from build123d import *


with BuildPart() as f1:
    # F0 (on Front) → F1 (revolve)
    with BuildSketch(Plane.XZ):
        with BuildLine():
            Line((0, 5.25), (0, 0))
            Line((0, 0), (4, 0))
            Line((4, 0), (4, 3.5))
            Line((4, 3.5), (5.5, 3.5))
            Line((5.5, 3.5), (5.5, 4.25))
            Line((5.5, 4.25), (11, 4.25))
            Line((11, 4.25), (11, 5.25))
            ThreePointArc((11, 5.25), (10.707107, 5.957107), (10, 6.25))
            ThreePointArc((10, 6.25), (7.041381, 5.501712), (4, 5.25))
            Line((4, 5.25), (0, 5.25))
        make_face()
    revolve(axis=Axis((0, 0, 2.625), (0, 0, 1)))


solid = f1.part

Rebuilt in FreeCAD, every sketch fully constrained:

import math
import FreeCAD as App
import Part
import Sketcher
from FreeCAD import Vector

doc = App.newDocument("Part")
body = doc.addObject("PartDesign::Body", "Body")

# Sketch on XZ plane
sketch1 = body.newObject("Sketcher::SketchObject", "Sketch")
sketch1.AttachmentSupport = (doc.getObject("XZ_Plane"), [""])
sketch1.MapMode = "FlatFace"
sketch1.addGeometry([
    Part.LineSegment(Vector(0, 5.25, 0), Vector(0, 0, 0)),  # 0
    Part.LineSegment(Vector(0, 0, 0), Vector(4, 0, 0)),  # 1
    Part.LineSegment(Vector(4, 0, 0), Vector(4, 3.5, 0)),  # 2
    Part.LineSegment(Vector(4, 3.5, 0), Vector(5.5, 3.5, 0)),  # 3
    Part.LineSegment(Vector(5.5, 3.5, 0), Vector(5.5, 4.25, 0)),  # 4
    Part.LineSegment(Vector(5.5, 4.25, 0), Vector(11, 4.25, 0)),  # 5
    Part.LineSegment(Vector(11, 4.25, 0), Vector(11, 5.25, 0)),  # 6
    Part.ArcOfCircle(Part.Circle(Vector(10.000001, 5.250001, 0), Vector(0, 0, 1), 0.999999), math.radians(-0.000043), math.radians(90.000043)),  # 7
    Part.ArcOfCircle(Part.Circle(Vector(4.000004, 23.749974, 0), Vector(0, 0, 1), 18.499974), math.radians(-90.000013), math.radians(-71.075342)),  # 8
    Part.LineSegment(Vector(4, 5.25, 0), Vector(0, 5.25, 0)),  # 9
], False)
sketch1.addConstraint([
    Sketcher.Constraint("Coincident", 0, 2, 1, 1),
    Sketcher.Constraint("Coincident", 1, 2, 2, 1),
    Sketcher.Constraint("Coincident", 2, 2, 3, 1),
    Sketcher.Constraint("Coincident", 3, 2, 4, 1),
    Sketcher.Constraint("Coincident", 4, 2, 5, 1),
    Sketcher.Constraint("Coincident", 5, 2, 6, 1),
    Sketcher.Constraint("Coincident", 6, 2, 7, 1),
    Sketcher.Constraint("Coincident", 7, 2, 8, 2),
    Sketcher.Constraint("Coincident", 8, 1, 9, 1),
    Sketcher.Constraint("Coincident", 9, 2, 0, 1),
    Sketcher.Constraint("Vertical", 0),
    Sketcher.Constraint("Horizontal", 1),
    Sketcher.Constraint("Vertical", 2),
    Sketcher.Constraint("Horizontal", 3),
    Sketcher.Constraint("Vertical", 4),
    Sketcher.Constraint("Horizontal", 5),
    Sketcher.Constraint("Vertical", 6),
    Sketcher.Constraint("Horizontal", 9),
    Sketcher.Constraint("Coincident", 0, 2, -1, 1),
    Sketcher.Constraint("Radius", 7, 0.999999),
    Sketcher.Constraint("DistanceX", 1, 1, 1, 2, 4.0),
    Sketcher.Constraint("DistanceX", 9, 2, 9, 1, 4.0),
    Sketcher.Constraint("DistanceY", 6, 1, 6, 2, 1.0),
    Sketcher.Constraint("DistanceX", 3, 1, 3, 2, 1.5),
    Sketcher.Constraint("DistanceX", 5, 1, 5, 2, 5.5),
    Sketcher.Constraint("DistanceY", 2, 1, 2, 2, 3.5),
    Sketcher.Constraint("DistanceX", -1, 1, 7, 2, 10.0),
    Sketcher.Constraint("DistanceY", 4, 2, 7, 3, 1.000001),
    Sketcher.Constraint("DistanceY", 4, 2, 8, 1, 1.0),
    Sketcher.Constraint("DistanceY", 0, 2, 0, 1, 5.25),
    Sketcher.Constraint("Radius", 8, 18.499974),
])
revolution = body.newObject("PartDesign::Revolution", "Revolution")
revolution.Profile = sketch1
revolution.ReferenceAxis = (sketch1, ["V_Axis"])
revolution.Angle = 360

doc.recompute()
